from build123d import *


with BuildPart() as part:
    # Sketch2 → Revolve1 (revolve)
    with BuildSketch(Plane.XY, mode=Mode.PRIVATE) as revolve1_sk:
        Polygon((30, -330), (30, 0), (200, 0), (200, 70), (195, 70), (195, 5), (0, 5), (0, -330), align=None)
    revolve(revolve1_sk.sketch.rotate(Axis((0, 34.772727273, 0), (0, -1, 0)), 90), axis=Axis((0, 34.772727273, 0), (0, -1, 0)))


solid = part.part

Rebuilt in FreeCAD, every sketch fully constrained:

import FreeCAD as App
import Part
import Sketcher
from FreeCAD import Vector
Q = App.Units.Quantity


def add_polygon(sketch, points):
    """Adds a closed chain of lines whose ends are joined by coincident constraints."""
    first, n = sketch.GeometryCount, len(points)
    for a, b in zip(points, points[1:] + points[:1]):
        sketch.addGeometry(Part.LineSegment(App.Vector(*a, 0), App.Vector(*b, 0)), False)
    for i in range(n):
        sketch.addConstraint(Sketcher.Constraint("Coincident", first + i, 2, first + (i + 1) % n, 1))

doc = App.newDocument("Part")
body = doc.addObject("PartDesign::Body", "Body")

# Sketch on XY plane
sketch1 = body.newObject("Sketcher::SketchObject", "Sketch")
sketch1.AttachmentSupport = (doc.getObject("XY_Plane"), [""])
sketch1.MapMode = "FlatFace"
add_polygon(sketch1, [(30, -330), (30, 0), (200, 0), (200, 70), (195, 70), (195, 5), (0, 5), (0, -330)])  # lines 0-7
sketch1.addConstraint([
    Sketcher.Constraint("Vertical", 0),
    Sketcher.Constraint("Horizontal", 1),
    Sketcher.Constraint("Vertical", 2),
    Sketcher.Constraint("Horizontal", 3),
    Sketcher.Constraint("Vertical", 4),
    Sketcher.Constraint("Horizontal", 5),
    Sketcher.Constraint("Vertical", 6),
    Sketcher.Constraint("Horizontal", 7),
    Sketcher.Constraint("PointOnObject", 0, 2, -1),
    Sketcher.Constraint("PointOnObject", 5, 2, -2),
    Sketcher.Constraint("DistanceX", 1, 1, 1, 2, Q("170 mm")),
    Sketcher.Constraint("DistanceX", 3, 2, 3, 1, Q("5 mm")),
    Sketcher.Constraint("DistanceX", 5, 2, 5, 1, Q("195 mm")),
    Sketcher.Constraint("DistanceY", 0, 1, 0, 2, Q("330 mm")),
    Sketcher.Constraint("DistanceY", 2, 1, 2, 2, Q("70 mm")),
    Sketcher.Constraint("DistanceY", 4, 2, 4, 1, Q("65 mm")),
])
revolution = body.newObject("PartDesign::Revolution", "Revolution")
revolution.Profile = sketch1
revolution.ReferenceAxis = (sketch1, ["V_Axis"])
revolution.Angle = 360

doc.recompute()
